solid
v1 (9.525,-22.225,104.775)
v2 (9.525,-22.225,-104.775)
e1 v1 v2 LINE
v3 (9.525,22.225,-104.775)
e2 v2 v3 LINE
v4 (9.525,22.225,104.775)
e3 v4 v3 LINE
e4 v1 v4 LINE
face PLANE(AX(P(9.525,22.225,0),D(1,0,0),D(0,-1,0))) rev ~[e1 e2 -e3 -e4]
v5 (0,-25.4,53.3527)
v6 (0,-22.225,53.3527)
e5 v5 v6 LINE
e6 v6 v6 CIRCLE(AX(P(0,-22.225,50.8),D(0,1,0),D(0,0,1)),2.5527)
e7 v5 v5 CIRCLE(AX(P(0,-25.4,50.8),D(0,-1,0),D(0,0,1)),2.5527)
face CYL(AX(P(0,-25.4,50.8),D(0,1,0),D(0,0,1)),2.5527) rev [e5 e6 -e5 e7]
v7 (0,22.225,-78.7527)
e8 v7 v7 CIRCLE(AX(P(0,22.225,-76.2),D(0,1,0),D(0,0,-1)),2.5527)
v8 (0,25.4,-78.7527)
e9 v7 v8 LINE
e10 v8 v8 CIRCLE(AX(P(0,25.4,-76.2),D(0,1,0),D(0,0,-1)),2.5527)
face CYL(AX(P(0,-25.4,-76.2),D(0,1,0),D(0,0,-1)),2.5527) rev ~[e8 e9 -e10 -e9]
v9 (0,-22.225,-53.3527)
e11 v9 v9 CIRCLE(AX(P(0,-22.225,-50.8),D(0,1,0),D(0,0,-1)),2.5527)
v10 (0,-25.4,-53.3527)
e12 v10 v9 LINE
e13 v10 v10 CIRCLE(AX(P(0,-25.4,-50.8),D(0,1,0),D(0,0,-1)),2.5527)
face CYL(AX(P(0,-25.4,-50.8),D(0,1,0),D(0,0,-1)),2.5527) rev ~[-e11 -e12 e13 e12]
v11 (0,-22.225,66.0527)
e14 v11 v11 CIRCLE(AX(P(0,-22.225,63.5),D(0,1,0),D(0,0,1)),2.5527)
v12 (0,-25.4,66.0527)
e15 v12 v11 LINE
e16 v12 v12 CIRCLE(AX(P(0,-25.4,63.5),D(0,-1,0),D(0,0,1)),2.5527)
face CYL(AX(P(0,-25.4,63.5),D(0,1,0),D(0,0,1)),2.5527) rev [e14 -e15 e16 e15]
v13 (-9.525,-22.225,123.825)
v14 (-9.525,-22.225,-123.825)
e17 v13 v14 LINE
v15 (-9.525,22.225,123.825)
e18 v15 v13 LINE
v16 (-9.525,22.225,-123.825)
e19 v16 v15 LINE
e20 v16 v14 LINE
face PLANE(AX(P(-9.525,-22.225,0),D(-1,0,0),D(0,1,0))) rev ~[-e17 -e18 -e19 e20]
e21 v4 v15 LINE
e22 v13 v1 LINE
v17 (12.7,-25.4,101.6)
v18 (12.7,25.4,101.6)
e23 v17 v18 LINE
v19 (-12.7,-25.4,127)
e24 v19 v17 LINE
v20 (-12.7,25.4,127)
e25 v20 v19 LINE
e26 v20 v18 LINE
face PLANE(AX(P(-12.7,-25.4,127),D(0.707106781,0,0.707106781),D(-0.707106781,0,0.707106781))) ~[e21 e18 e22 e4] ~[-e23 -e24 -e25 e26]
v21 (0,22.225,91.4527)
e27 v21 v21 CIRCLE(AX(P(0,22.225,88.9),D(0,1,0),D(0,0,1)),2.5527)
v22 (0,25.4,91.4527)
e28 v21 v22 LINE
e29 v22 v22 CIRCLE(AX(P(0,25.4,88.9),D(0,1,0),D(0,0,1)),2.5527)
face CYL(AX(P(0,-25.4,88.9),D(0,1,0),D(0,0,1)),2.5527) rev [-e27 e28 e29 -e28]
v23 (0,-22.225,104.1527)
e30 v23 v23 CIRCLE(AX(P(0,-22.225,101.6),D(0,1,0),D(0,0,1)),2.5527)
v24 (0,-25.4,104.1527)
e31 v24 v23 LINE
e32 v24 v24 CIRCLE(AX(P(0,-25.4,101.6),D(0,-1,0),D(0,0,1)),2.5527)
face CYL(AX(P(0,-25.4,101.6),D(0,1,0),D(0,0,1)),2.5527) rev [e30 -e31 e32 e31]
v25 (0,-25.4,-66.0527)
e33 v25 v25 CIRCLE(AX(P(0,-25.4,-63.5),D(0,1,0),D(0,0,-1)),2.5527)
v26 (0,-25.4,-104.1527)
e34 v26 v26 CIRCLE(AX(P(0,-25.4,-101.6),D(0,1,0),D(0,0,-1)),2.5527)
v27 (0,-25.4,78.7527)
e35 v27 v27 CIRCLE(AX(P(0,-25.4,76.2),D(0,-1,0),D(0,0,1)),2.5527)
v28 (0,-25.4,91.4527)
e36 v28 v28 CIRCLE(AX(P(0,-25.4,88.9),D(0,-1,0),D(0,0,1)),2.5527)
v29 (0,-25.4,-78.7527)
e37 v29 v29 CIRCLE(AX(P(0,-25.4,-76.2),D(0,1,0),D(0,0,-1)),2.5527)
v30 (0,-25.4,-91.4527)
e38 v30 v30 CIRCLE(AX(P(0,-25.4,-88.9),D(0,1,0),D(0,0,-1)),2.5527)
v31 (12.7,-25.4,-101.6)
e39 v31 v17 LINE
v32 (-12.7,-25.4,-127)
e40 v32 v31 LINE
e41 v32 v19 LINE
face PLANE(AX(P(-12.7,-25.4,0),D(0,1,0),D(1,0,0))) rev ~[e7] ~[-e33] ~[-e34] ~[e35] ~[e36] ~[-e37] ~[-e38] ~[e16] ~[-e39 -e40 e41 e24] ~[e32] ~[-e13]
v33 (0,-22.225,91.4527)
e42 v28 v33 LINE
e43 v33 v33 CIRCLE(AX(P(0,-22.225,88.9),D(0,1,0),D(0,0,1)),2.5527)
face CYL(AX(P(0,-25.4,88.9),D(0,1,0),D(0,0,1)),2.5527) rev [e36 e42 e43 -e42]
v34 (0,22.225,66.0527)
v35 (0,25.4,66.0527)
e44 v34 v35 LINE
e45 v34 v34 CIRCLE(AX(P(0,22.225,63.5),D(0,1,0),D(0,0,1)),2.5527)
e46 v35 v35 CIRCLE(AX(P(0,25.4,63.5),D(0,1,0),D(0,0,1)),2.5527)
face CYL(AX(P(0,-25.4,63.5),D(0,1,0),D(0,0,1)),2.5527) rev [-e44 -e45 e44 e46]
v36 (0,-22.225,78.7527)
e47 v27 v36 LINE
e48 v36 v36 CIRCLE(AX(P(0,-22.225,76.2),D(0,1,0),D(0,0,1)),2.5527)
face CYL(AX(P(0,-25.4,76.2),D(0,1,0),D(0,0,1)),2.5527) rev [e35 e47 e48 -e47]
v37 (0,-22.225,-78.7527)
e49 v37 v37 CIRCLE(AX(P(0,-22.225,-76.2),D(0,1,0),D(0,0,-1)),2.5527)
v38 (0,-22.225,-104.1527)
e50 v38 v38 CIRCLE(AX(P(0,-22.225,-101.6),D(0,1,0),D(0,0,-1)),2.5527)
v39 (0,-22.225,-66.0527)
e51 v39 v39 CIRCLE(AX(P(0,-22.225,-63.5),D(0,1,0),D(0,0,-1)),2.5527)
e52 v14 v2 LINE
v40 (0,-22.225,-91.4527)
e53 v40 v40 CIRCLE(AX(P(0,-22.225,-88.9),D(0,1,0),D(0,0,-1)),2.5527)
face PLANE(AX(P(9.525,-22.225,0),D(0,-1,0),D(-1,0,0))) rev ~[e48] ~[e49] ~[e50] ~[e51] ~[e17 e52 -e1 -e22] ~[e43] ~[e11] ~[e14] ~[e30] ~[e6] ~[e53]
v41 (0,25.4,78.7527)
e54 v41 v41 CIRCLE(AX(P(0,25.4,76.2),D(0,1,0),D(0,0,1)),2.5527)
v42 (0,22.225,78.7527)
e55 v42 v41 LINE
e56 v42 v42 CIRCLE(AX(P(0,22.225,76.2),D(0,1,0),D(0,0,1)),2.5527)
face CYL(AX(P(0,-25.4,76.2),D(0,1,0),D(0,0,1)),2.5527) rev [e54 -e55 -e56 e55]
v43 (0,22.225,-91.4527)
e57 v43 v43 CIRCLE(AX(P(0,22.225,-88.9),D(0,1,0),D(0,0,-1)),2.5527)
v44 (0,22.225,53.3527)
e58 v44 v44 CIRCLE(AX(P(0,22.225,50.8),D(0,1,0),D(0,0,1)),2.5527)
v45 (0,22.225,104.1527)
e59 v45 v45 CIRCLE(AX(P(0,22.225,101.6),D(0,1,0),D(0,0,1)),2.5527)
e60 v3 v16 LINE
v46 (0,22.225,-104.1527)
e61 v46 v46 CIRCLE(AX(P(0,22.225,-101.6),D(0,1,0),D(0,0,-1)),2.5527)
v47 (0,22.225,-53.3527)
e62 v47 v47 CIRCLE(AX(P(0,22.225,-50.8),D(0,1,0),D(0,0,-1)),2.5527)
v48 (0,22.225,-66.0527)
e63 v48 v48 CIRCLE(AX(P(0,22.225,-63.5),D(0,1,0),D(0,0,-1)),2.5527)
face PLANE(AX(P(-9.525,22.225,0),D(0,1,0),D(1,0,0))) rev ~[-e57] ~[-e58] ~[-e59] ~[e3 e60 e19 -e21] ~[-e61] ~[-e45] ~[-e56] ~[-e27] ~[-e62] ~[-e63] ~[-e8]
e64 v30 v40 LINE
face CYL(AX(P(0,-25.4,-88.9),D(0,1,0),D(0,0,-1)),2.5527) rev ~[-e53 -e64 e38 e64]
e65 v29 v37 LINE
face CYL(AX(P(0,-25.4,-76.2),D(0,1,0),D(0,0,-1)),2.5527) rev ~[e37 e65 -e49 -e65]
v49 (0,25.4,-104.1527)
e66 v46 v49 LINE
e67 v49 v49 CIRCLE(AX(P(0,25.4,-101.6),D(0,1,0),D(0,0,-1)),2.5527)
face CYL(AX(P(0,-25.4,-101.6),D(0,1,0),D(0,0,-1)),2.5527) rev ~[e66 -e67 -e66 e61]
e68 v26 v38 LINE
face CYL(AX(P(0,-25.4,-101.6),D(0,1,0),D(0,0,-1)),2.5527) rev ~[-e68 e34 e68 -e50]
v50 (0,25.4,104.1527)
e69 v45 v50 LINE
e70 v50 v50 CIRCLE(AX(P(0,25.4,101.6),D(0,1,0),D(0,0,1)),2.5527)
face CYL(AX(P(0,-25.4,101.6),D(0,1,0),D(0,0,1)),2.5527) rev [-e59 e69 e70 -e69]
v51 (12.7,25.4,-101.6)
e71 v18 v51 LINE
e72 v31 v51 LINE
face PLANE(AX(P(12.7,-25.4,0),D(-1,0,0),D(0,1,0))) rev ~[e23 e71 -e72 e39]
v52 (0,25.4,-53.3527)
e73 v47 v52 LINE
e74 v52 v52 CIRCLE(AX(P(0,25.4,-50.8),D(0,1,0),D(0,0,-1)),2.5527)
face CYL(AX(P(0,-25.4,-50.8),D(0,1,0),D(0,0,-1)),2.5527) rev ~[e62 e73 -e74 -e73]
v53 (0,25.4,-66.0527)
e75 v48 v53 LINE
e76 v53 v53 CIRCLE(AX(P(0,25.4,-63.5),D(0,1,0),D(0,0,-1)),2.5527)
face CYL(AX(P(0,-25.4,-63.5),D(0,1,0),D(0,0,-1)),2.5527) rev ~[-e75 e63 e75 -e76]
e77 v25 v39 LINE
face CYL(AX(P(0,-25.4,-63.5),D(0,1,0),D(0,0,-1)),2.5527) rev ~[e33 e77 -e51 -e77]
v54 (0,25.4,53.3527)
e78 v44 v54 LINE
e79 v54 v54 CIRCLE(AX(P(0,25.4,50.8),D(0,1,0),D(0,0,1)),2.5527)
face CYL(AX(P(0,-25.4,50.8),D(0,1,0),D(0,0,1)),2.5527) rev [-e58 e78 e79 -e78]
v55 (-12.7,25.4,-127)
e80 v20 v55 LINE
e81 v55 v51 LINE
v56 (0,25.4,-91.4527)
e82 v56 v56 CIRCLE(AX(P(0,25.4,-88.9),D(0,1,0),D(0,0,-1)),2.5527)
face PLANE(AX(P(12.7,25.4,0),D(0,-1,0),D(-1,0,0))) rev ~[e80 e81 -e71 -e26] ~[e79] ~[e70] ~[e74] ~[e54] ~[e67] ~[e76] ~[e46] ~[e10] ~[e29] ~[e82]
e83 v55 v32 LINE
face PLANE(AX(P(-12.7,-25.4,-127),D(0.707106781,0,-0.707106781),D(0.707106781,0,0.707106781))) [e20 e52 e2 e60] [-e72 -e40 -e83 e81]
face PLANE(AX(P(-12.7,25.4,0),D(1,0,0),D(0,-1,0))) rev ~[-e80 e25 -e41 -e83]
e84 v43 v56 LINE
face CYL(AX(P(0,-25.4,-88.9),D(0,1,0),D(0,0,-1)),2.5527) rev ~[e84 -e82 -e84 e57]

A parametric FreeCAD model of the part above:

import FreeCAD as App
import Part
import Sketcher
Q = App.Units.Quantity


def add_polygon(sketch, points):
    """Adds a closed chain of lines whose ends are joined by coincident constraints."""
    first, n = sketch.GeometryCount, len(points)
    for a, b in zip(points, points[1:] + points[:1]):
        sketch.addGeometry(Part.LineSegment(App.Vector(*a, 0), App.Vector(*b, 0)), False)
    for i in range(n):
        sketch.addConstraint(Sketcher.Constraint("Coincident", first + i, 2, first + (i + 1) % n, 1))

doc = App.newDocument("Part")
body = doc.addObject("PartDesign::Body", "Body")

# Sketch on XY plane
sketch1 = doc.addObject("Sketcher::SketchObject", "Sketch")
body.addObject(sketch1)
sketch1.AttachmentSupport = (doc.XY_Plane, [""])
sketch1.MapMode = "FlatFace"
add_polygon(sketch1, [(-13, 25), (-13, -25), (13, -25), (13, 25)])  # lines 0-3
add_polygon(sketch1, [(-10, -22), (-10, 22), (10, 22), (10, -22)])  # lines 4-7
sketch1.addConstraint(Sketcher.Constraint("Vertical", 0))
sketch1.addConstraint(Sketcher.Constraint("Horizontal", 1))
sketch1.addConstraint(Sketcher.Constraint("Vertical", 2))
sketch1.addConstraint(Sketcher.Constraint("Horizontal", 3))
sketch1.addConstraint(Sketcher.Constraint("Vertical", 4))
sketch1.addConstraint(Sketcher.Constraint("Horizontal", 5))
sketch1.addConstraint(Sketcher.Constraint("Vertical", 6))
sketch1.addConstraint(Sketcher.Constraint("Horizontal", 7))
sketch1.addConstraint(Sketcher.Constraint("Symmetric", 0, 2, 2, 2, -1, 1))
sketch1.addConstraint(Sketcher.Constraint("Symmetric", 4, 2, 6, 2, -1, 1))
sketch1.addConstraint(Sketcher.Constraint("DistanceX", 1, 1, 1, 2, Q("1 in")))
sketch1.addConstraint(Sketcher.Constraint("DistanceY", 0, 2, 0, 1, Q("2 in")))
sketch1.addConstraint(Sketcher.Constraint("DistanceX", 3, 2, 4, 2, Q("0.125 in")))
sketch1.addConstraint(Sketcher.Constraint("DistanceY", 4, 2, 3, 2, Q("0.125 in")))
pad1 = doc.addObject("PartDesign::Pad", "Pad")
body.addObject(pad1)
pad1.Profile = sketch1
pad1.Length = Q("10 in")
pad1.Midplane = True

# Sketch on XZ plane
sketch2 = doc.addObject("Sketcher::SketchObject", "Sketch001")
body.addObject(sketch2)
sketch2.AttachmentSupport = (doc.XZ_Plane, [""])
sketch2.MapMode = "FlatFace"
sketch2.AttachmentOffset = App.Placement(App.Vector(0, 0, 1 * 25.4), App.Rotation())
add_polygon(sketch2, [(13, -127), (13, -102), (-13, -127)])  # lines 0-2
sketch2.addConstraint(Sketcher.Constraint("Vertical", 0))
sketch2.addConstraint(Sketcher.Constraint("Horizontal", 2))
sketch2.addConstraint(Sketcher.Constraint("Equal", 2, 0))
sketch2.addConstraint(Sketcher.Constraint("DistanceX", 2, 1, 2, 2, Q("1 in")))
sketch2.addConstraint(Sketcher.Constraint("DistanceY", 0, 2, -1, 1, Q("4 in")))
sketch2.addConstraint(Sketcher.Constraint("DistanceX", -1, 1, 0, 2, Q("0.5 in")))
pocket1 = doc.addObject("PartDesign::Pocket", "Pocket")
body.addObject(pocket1)
pocket1.Profile = sketch2
pocket1.Type = "ThroughAll"

# Sketch on XZ plane
sketch3 = doc.addObject("Sketcher::SketchObject", "Sketch002")
body.addObject(sketch3)
sketch3.AttachmentSupport = (doc.XZ_Plane, [""])
sketch3.MapMode = "FlatFace"
sketch3.AttachmentOffset = App.Placement(App.Vector(0, 0, 1 * 25.4), App.Rotation())
sketch3.addGeometry(Part.Circle(App.Vector(0, -101.6, 0), App.Vector(0, 0, 1), 2.6), False)
sketch3.addGeometry(Part.Circle(App.Vector(0, -88.9, 0), App.Vector(0, 0, 1), 2.6), False)
sketch3.addGeometry(Part.Circle(App.Vector(0, -76.2, 0), App.Vector(0, 0, 1), 2.6), False)
sketch3.addGeometry(Part.Circle(App.Vector(0, -63.5, 0), App.Vector(0, 0, 1), 2.6), False)
sketch3.addGeometry(Part.Circle(App.Vector(0, -50.8, 0), App.Vector(0, 0, 1), 2.6), False)
sketch3.addConstraint(Sketcher.Constraint("Equal", 0, 1))
sketch3.addConstraint(Sketcher.Constraint("Equal", 1, 2))
sketch3.addConstraint(Sketcher.Constraint("Equal", 2, 3))
sketch3.addConstraint(Sketcher.Constraint("Equal", 3, 4))
sketch3.addConstraint(Sketcher.Constraint("PointOnObject", 0, 3, -2))
sketch3.addConstraint(Sketcher.Constraint("PointOnObject", 1, 3, -2))
sketch3.addConstraint(Sketcher.Constraint("PointOnObject", 2, 3, -2))
sketch3.addConstraint(Sketcher.Constraint("PointOnObject", 3, 3, -2))
sketch3.addConstraint(Sketcher.Constraint("PointOnObject", 4, 3, -2))
sketch3.addConstraint(Sketcher.Constraint("Diameter", 0, Q("0.201 in")))
sketch3.addConstraint(Sketcher.Constraint("DistanceY", 0, 3, -1, 1, Q("4 in")))
sketch3.addConstraint(Sketcher.Constraint("DistanceY", 2, 3, -1, 1, Q("3 in")))
sketch3.addConstraint(Sketcher.Constraint("DistanceY", 4, 3, -1, 1, Q("2 in")))
sketch3.addConstraint(Sketcher.Constraint("DistanceY", 1, 3, 3, 3, Q("1 in")))
sketch3.addConstraint(Sketcher.Constraint("DistanceY", 1, 3, -1, 1, Q("3.5 in")))
doc.recompute()
hole = doc.addObject("PartDesign::Hole", "Hole")
body.addObject(hole)
hole.Profile = sketch3
hole.ThreadType = "None"
hole.Diameter = Q("0.201 in")
hole.DepthType = "ThroughAll"
doc.recompute()

mirrored = doc.addObject("PartDesign::Mirrored", "Mirrored")
body.addObject(mirrored)
mirrored.Originals = [hole, pocket1]
mirrored.MirrorPlane = (doc.XY_Plane, [""])
body.Tip = mirrored

doc.recompute()
